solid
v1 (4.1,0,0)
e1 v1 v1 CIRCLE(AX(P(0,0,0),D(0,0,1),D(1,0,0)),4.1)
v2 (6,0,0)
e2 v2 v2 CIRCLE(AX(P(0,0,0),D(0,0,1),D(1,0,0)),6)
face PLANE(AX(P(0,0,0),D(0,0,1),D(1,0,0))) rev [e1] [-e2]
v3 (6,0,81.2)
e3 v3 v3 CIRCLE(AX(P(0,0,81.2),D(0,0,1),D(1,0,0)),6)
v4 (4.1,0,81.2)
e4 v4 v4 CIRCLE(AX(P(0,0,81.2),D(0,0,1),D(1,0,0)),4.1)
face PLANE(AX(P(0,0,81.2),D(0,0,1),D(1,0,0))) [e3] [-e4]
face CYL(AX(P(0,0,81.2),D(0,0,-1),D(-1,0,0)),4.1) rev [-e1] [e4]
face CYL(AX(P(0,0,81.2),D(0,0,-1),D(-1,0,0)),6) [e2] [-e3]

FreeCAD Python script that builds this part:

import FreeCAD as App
import Part
import Sketcher
Q = App.Units.Quantity

doc = App.newDocument("Part")
body = doc.addObject("PartDesign::Body", "Body")

# Sketch on XY plane
sketch1 = doc.addObject("Sketcher::SketchObject", "Sketch")
body.addObject(sketch1)
sketch1.AttachmentSupport = (doc.XY_Plane, [""])
sketch1.MapMode = "FlatFace"
sketch1.addGeometry([
    Part.Circle(App.Vector(0, 0, 0), App.Vector(0, 0, 1), 6),
    Part.Circle(App.Vector(0, 0, 0), App.Vector(0, 0, 1), 4.1),
], False)
sketch1.addConstraint([
    Sketcher.Constraint("Coincident", 0, 3, -1, 1),
    Sketcher.Constraint("Coincident", 1, 3, -1, 1),
    Sketcher.Constraint("Diameter", 0, Q("12 mm")),
    Sketcher.Constraint("Diameter", 1, Q("8.2 mm")),
])
pad1 = doc.addObject("PartDesign::Pad", "Pad")
body.addObject(pad1)
pad1.Profile = sketch1
pad1.Length = 81.2

doc.recompute()
